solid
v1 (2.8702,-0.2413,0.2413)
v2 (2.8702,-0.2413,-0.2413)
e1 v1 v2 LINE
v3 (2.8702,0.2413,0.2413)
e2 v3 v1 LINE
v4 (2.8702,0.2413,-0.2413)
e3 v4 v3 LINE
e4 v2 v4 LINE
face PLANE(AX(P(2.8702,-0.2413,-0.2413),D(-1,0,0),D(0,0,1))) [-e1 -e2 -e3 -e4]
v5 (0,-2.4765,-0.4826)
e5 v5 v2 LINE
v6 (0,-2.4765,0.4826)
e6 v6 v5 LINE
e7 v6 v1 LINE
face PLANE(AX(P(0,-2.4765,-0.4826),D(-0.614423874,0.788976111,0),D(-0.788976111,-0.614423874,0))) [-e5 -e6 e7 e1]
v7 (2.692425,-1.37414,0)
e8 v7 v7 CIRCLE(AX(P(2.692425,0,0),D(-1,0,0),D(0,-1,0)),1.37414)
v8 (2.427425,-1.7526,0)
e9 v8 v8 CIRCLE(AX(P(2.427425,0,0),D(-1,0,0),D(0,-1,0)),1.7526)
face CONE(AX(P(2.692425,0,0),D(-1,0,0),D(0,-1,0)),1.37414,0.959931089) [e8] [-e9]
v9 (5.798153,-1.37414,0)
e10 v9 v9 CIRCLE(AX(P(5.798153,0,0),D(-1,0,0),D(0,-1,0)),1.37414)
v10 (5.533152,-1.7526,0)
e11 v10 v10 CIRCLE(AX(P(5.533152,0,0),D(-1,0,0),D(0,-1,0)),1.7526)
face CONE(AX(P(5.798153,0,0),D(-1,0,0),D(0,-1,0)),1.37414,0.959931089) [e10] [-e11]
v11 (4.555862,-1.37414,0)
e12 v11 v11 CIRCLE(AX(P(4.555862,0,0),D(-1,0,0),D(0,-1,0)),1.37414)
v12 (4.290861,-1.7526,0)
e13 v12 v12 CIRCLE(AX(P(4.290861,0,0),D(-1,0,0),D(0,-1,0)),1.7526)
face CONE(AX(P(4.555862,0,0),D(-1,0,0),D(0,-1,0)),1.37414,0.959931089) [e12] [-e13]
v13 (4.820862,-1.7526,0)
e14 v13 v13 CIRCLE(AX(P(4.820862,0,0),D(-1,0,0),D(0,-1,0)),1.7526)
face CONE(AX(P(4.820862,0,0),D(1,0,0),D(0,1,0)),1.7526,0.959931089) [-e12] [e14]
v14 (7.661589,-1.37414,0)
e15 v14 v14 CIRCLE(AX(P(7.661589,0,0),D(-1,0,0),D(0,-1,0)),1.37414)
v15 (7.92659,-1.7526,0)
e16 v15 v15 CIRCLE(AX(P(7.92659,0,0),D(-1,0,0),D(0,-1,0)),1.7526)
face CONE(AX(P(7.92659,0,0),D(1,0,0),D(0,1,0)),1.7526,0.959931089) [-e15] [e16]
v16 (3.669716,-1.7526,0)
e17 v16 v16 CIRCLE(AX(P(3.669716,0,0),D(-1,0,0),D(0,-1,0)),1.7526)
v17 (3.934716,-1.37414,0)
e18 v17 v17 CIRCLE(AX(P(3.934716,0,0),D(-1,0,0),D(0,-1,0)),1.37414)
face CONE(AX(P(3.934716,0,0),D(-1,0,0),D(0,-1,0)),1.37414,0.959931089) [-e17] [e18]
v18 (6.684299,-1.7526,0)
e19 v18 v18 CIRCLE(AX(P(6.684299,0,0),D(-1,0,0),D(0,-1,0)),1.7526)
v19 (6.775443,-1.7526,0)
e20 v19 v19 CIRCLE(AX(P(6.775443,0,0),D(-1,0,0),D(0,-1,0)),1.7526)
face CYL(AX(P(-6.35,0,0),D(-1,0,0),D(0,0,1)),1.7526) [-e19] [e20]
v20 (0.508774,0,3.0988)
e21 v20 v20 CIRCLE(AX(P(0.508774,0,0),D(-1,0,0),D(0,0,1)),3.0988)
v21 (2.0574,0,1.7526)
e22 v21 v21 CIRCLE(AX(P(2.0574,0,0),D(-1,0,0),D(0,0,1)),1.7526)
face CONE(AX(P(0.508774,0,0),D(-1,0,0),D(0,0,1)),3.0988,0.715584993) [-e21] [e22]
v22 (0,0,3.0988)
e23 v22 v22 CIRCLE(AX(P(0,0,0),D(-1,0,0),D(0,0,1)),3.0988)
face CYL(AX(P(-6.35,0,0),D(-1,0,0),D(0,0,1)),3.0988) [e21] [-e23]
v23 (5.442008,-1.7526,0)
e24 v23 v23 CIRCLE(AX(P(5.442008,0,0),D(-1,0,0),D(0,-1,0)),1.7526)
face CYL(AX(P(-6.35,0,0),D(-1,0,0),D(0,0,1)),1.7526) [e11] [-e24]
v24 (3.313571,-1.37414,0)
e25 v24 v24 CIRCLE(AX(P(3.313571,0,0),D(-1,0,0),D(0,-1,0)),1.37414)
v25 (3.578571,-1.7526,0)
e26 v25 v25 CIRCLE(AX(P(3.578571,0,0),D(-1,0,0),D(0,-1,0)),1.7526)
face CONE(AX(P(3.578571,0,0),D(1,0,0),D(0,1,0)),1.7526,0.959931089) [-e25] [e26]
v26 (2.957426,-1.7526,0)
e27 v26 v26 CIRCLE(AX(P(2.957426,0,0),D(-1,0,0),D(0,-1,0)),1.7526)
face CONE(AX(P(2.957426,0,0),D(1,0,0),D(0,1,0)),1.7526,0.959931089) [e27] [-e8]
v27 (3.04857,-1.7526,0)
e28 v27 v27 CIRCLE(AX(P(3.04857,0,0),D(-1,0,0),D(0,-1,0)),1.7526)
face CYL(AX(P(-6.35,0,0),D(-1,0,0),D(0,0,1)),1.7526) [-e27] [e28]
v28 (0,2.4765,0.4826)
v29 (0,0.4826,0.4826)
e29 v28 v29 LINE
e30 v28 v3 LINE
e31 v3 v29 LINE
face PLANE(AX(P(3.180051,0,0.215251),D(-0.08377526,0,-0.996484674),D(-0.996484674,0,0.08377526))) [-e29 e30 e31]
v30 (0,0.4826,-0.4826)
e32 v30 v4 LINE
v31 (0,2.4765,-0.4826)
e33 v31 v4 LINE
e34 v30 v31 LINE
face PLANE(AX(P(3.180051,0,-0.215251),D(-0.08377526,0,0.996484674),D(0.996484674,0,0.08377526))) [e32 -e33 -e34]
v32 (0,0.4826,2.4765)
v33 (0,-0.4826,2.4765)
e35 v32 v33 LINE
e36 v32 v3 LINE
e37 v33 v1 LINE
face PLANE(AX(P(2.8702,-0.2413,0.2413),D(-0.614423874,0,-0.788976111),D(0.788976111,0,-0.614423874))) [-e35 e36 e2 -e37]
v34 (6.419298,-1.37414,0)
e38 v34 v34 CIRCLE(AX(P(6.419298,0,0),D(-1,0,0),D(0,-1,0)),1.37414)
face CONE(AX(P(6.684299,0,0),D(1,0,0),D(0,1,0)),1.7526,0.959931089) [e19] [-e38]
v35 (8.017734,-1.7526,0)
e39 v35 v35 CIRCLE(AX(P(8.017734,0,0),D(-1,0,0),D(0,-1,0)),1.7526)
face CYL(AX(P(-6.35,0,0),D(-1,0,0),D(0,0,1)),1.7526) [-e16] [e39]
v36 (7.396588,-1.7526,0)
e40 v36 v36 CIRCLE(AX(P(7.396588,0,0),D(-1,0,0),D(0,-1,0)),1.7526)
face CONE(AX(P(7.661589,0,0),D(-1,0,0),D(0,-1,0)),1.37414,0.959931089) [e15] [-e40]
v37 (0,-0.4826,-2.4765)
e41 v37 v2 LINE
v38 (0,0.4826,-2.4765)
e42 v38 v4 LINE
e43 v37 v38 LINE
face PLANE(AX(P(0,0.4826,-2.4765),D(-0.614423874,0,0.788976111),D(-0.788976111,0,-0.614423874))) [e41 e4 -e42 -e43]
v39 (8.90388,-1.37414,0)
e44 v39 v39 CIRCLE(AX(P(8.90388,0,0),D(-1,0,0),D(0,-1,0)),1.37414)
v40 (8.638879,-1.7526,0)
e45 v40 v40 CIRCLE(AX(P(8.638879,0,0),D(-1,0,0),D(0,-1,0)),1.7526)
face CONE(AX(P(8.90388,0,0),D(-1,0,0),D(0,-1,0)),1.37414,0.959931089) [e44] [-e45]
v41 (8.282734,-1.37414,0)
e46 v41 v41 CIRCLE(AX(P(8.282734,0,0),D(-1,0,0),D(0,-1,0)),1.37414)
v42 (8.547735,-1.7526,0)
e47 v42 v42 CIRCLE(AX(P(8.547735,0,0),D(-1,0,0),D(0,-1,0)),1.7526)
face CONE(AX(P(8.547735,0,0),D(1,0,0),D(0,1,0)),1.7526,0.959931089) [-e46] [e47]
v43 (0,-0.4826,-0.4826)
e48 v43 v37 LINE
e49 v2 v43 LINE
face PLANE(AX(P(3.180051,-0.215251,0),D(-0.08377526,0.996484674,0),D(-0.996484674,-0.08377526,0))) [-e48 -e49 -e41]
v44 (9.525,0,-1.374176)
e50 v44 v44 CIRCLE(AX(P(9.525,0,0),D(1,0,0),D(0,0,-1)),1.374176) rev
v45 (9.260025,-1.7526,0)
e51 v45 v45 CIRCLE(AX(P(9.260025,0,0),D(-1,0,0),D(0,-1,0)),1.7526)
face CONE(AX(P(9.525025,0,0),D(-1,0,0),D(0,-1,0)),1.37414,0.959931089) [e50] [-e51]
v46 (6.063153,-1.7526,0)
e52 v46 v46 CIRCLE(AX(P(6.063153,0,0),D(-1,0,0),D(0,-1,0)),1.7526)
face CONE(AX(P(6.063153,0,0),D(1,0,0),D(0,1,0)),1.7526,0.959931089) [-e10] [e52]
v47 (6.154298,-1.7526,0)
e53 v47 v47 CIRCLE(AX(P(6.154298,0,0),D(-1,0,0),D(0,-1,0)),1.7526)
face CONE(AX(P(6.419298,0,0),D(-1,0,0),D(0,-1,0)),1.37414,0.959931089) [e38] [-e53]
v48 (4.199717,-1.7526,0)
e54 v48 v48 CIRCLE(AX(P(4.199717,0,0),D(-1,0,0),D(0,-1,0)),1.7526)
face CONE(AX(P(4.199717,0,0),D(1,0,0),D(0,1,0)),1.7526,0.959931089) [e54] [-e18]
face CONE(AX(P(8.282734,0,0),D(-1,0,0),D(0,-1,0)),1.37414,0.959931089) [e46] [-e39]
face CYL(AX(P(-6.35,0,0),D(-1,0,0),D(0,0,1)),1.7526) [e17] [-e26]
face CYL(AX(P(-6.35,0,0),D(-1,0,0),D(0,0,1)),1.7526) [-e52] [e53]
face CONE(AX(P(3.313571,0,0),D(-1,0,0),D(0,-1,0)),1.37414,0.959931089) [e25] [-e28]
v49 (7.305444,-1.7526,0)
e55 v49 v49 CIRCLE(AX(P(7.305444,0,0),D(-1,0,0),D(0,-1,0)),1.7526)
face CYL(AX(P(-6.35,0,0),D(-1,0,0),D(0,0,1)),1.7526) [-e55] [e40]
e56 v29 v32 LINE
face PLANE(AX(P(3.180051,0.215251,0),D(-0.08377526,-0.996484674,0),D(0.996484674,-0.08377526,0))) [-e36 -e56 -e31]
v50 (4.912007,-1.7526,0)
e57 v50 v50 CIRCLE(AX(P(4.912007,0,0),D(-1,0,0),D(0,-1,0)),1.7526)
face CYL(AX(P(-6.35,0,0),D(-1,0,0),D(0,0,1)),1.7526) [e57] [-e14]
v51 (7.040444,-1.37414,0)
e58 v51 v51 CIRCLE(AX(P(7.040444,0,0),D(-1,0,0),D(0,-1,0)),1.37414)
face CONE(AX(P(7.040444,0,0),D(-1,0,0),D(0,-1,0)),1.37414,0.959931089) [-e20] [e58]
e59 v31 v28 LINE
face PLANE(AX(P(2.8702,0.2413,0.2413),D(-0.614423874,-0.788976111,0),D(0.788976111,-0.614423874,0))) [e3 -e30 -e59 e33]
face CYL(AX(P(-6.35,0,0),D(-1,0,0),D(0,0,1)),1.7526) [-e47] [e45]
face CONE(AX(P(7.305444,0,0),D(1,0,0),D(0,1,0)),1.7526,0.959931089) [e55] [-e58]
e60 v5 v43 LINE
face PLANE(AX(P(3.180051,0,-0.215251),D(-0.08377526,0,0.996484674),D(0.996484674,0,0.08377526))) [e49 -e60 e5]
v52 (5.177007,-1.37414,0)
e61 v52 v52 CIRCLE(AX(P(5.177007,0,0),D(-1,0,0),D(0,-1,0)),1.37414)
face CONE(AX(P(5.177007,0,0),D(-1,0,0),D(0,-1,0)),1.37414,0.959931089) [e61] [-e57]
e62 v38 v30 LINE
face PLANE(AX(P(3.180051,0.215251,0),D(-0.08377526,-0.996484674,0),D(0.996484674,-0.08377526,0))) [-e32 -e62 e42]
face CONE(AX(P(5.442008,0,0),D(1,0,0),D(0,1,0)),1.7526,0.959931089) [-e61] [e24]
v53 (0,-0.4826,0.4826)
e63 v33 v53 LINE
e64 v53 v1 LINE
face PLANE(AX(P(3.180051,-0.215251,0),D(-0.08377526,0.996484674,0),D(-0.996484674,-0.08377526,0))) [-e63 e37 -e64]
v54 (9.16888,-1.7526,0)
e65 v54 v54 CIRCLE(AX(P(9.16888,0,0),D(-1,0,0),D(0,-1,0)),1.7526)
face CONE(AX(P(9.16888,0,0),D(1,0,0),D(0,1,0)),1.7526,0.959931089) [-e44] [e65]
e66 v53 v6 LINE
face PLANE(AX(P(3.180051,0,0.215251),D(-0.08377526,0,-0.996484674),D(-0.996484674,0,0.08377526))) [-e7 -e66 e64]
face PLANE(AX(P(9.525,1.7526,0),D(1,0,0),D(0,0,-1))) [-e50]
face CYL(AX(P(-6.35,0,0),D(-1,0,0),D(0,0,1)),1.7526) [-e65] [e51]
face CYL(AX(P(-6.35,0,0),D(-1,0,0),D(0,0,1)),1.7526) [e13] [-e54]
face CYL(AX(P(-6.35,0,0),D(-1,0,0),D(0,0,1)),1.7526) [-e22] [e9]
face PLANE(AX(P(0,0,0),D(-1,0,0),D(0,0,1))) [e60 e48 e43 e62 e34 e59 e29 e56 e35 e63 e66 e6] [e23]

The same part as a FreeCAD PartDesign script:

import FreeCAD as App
import Part
import Sketcher

V = App.Vector
Q = App.Units.Quantity


def add_polygon(sketch, points):
    """Adds a closed chain of lines whose ends are joined by coincident constraints."""
    first, n = sketch.GeometryCount, len(points)
    for a, b in zip(points, points[1:] + points[:1]):
        sketch.addGeometry(Part.LineSegment(App.Vector(*a, 0), App.Vector(*b, 0)), False)
    for i in range(n):
        sketch.addConstraint(Sketcher.Constraint("Coincident", first + i, 2, first + (i + 1) % n, 1))

doc = App.newDocument("Part")
body = doc.addObject("PartDesign::Body", "Body")

# Sketch on XY plane
sketch1 = body.newObject("Sketcher::SketchObject", "Sketch")
sketch1.AttachmentSupport = (doc.getObject("XY_Plane"), [""])
sketch1.MapMode = "FlatFace"
add_polygon(sketch1, [(0, 3.0988), (0, 0), (9.525, 0), (9.525, 1.7526), (2.0574, 1.7526), (0.508774, 3.0988)])  # lines 0-5
sketch1.addConstraint([
    Sketcher.Constraint("Vertical", 0),
    Sketcher.Constraint("Horizontal", 1),
    Sketcher.Constraint("Vertical", 2),
    Sketcher.Constraint("Horizontal", 3),
    Sketcher.Constraint("Horizontal", 5),
    Sketcher.Constraint("Coincident", 0, 2, -1, 1),
    Sketcher.Constraint("Angle", 4, Q("139 deg")),
    Sketcher.Constraint("DistanceX", 1, 1, 1, 2, Q("0.375 in")),
    Sketcher.Constraint("DistanceX", 3, 2, 3, 1, Q("0.294 in")),
    Sketcher.Constraint("DistanceY", 0, 2, 0, 1, Q("0.122 in")),
    Sketcher.Constraint("DistanceY", 2, 1, 2, 2, Q("0.069 in")),
])
revolution = body.newObject("PartDesign::Revolution", "Revolution")
revolution.Profile = sketch1
revolution.ReferenceAxis = (sketch1, ["H_Axis"])
revolution.Angle = 360

# Sketch on YZ plane
sketch2 = body.newObject("Sketcher::SketchObject", "Sketch001")
sketch2.AttachmentSupport = (doc.getObject("YZ_Plane"), [""])
sketch2.MapMode = "FlatFace"
add_polygon(sketch2, [(2.4765, 0.4826), (2.4765, -0.4826), (-2.4765, -0.4826), (-2.4765, 0.4826)])  # lines 0-3
sketch2.addConstraint([
    Sketcher.Constraint("Vertical", 0),
    Sketcher.Constraint("Horizontal", 1),
    Sketcher.Constraint("Vertical", 2),
    Sketcher.Constraint("Horizontal", 3),
    Sketcher.Constraint("Symmetric", 0, 2, 2, 2, -1, 1),
    Sketcher.Constraint("DistanceX", 1, 2, 1, 1, Q("0.195 in")),
    Sketcher.Constraint("DistanceY", 0, 2, 0, 1, Q("0.038 in")),
])

# Sketch on YZ plane
sketch3 = body.newObject("Sketcher::SketchObject", "Sketch002")
sketch3.AttachmentSupport = (doc.getObject("YZ_Plane"), [""])
sketch3.MapMode = "FlatFace"
sketch3.AttachmentOffset = App.Placement(V(0, 0, 0.113 * 25.4), App.Rotation())
add_polygon(sketch3, [(0.2413, 0.2413), (0.2413, -0.2413), (-0.2413, -0.2413), (-0.2413, 0.2413)])  # lines 0-3
sketch3.addConstraint([
    Sketcher.Constraint("Vertical", 0),
    Sketcher.Constraint("Horizontal", 1),
    Sketcher.Constraint("Vertical", 2),
    Sketcher.Constraint("Horizontal", 3),
    Sketcher.Constraint("Symmetric", 0, 2, 2, 2, -1, 1),
    Sketcher.Constraint("Equal", 3, 0),
    Sketcher.Constraint("DistanceX", 1, 2, 1, 1, Q("0.019 in")),
])

subtractiveloft = body.newObject("PartDesign::SubtractiveLoft", "SubtractiveLoft")
subtractiveloft.Profile = sketch2
subtractiveloft.Sections = [sketch3]
doc.recompute()

polarpattern = body.newObject("PartDesign::PolarPattern", "PolarPattern")
polarpattern.Originals = [subtractiveloft]
polarpattern.Axis = (doc.getObject("X_Axis"), [""])
polarpattern.Angle = 90
polarpattern.Occurrences = 2
body.Tip = polarpattern

# Sketch on XY plane
sketch4 = body.newObject("Sketcher::SketchObject", "Sketch003")
sketch4.AttachmentSupport = (doc.getObject("XY_Plane"), [""])
sketch4.MapMode = "FlatFace"
add_polygon(sketch4, [(2.692425, -1.37414), (2.427425, -1.7526), (2.427425, -2.19075), (2.957426, -2.19075), (2.957426, -1.7526)])  # lines 0-4
sketch4.addConstraint([
    Sketcher.Constraint("Vertical", 1),
    Sketcher.Constraint("Horizontal", 2),
    Sketcher.Constraint("Vertical", 3),
    Sketcher.Constraint("Horizontal", 0, 2, 3, 2),
    Sketcher.Constraint("Equal", 0, 4),
    Sketcher.Constraint("Angle", 0, Q("-125 deg")),
    Sketcher.Constraint("DistanceY", 0, 2, -1, 1, Q("0.069 in")),
    Sketcher.Constraint("DistanceX", 2, 1, 2, 2, 0.530001),
    Sketcher.Constraint("DistanceY", 1, 2, 1, 1, 0.43815),
    Sketcher.Constraint("DistanceX", -1, 1, 0, 2, 2.427425),
])
groove = body.newObject("PartDesign::Groove", "Groove")
groove.Profile = sketch4
groove.ReferenceAxis = (sketch4, ["H_Axis"])
groove.Angle = 360
doc.recompute()

linearpattern = body.newObject("PartDesign::LinearPattern", "LinearPattern")
linearpattern.Originals = [groove]
linearpattern.Direction = (doc.getObject("X_Axis"), [""])
linearpattern.Mode = "offset"
linearpattern.Offset = 0.621145
linearpattern.Occurrences = 12
body.Tip = linearpattern

doc.recompute()
